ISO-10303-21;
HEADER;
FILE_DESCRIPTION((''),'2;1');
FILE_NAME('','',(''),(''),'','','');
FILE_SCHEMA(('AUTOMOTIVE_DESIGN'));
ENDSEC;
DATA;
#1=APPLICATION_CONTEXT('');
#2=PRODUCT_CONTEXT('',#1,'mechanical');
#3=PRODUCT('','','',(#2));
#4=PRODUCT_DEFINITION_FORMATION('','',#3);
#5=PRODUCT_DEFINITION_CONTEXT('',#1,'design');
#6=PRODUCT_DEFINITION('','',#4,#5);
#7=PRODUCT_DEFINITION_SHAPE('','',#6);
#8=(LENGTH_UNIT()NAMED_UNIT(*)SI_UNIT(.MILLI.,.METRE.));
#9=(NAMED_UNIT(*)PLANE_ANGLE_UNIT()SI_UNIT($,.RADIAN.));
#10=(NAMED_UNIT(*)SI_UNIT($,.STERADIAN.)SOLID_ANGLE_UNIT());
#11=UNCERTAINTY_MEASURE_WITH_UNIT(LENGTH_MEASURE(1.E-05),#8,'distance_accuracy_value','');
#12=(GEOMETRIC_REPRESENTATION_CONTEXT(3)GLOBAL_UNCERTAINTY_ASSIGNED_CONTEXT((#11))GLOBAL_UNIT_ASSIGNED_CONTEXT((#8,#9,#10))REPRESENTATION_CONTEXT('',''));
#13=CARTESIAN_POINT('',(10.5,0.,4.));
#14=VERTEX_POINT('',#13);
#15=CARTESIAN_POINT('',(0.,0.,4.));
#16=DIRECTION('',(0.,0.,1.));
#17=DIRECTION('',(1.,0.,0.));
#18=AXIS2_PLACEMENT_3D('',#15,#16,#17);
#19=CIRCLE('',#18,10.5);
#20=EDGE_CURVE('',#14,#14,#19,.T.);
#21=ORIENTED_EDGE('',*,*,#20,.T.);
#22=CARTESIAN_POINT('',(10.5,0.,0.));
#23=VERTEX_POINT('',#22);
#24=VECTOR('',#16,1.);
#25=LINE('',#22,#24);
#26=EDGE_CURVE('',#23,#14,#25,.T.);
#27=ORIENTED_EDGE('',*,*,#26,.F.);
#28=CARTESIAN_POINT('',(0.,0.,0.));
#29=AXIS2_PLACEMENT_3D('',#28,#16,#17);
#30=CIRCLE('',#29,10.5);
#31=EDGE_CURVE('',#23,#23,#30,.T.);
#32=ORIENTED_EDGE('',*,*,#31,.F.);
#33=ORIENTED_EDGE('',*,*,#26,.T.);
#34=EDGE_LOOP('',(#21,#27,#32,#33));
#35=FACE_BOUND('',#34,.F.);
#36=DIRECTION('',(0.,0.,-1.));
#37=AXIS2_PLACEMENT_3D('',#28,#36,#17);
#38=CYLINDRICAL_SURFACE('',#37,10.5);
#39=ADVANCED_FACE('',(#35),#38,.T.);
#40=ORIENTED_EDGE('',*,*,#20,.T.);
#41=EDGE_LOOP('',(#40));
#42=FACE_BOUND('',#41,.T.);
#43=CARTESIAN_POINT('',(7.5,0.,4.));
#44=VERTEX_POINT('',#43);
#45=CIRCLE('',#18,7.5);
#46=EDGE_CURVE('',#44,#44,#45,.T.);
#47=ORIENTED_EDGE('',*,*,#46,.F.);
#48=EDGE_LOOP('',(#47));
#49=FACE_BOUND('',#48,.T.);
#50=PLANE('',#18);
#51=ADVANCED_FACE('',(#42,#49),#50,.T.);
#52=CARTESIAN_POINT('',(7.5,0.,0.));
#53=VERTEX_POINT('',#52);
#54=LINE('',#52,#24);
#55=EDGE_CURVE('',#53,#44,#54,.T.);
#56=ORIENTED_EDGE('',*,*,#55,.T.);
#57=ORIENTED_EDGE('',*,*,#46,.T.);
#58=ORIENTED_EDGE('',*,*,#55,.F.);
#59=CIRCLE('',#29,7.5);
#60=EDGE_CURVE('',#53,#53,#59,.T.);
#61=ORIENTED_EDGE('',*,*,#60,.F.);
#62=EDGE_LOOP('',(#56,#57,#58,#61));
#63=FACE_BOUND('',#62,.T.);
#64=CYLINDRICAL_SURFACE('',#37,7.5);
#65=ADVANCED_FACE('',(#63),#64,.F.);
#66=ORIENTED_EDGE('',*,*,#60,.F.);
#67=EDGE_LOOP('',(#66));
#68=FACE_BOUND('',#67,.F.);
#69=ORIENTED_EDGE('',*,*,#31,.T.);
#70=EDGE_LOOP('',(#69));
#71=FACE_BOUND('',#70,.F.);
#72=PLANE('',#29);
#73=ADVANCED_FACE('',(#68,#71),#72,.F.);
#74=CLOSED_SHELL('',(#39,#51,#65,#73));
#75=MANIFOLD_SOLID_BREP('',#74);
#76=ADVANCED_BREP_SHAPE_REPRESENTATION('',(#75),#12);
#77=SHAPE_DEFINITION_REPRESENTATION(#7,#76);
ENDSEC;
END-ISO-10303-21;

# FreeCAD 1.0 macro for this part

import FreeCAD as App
import Part
import Sketcher

V = App.Vector

doc = App.newDocument("Part")
body = doc.addObject("PartDesign::Body", "Body")

sketch1 = body.newObject("Sketcher::SketchObject", "Sketch")
sketch1.AttachmentSupport = (doc.getObject("XY_Plane"), [""])
sketch1.MapMode = "FlatFace"
sketch1.addGeometry([
    Part.Circle(V(0, 0, 0), V(0, 0, 1), 10),
    Part.Circle(V(0, 0, 0), V(0, 0, 1), 8),
], False)
sketch1.addConstraint([
    Sketcher.Constraint("Coincident", 0, 3, -1, 1),
    Sketcher.Constraint("Coincident", 1, 3, -1, 1),
    Sketcher.Constraint("Diameter", 0, 21.0),
    Sketcher.Constraint("Diameter", 1, 15.0),
])
pad1 = body.newObject("PartDesign::Pad", "Pad")
pad1.Profile = sketch1
pad1.Length = 4

doc.recompute()
